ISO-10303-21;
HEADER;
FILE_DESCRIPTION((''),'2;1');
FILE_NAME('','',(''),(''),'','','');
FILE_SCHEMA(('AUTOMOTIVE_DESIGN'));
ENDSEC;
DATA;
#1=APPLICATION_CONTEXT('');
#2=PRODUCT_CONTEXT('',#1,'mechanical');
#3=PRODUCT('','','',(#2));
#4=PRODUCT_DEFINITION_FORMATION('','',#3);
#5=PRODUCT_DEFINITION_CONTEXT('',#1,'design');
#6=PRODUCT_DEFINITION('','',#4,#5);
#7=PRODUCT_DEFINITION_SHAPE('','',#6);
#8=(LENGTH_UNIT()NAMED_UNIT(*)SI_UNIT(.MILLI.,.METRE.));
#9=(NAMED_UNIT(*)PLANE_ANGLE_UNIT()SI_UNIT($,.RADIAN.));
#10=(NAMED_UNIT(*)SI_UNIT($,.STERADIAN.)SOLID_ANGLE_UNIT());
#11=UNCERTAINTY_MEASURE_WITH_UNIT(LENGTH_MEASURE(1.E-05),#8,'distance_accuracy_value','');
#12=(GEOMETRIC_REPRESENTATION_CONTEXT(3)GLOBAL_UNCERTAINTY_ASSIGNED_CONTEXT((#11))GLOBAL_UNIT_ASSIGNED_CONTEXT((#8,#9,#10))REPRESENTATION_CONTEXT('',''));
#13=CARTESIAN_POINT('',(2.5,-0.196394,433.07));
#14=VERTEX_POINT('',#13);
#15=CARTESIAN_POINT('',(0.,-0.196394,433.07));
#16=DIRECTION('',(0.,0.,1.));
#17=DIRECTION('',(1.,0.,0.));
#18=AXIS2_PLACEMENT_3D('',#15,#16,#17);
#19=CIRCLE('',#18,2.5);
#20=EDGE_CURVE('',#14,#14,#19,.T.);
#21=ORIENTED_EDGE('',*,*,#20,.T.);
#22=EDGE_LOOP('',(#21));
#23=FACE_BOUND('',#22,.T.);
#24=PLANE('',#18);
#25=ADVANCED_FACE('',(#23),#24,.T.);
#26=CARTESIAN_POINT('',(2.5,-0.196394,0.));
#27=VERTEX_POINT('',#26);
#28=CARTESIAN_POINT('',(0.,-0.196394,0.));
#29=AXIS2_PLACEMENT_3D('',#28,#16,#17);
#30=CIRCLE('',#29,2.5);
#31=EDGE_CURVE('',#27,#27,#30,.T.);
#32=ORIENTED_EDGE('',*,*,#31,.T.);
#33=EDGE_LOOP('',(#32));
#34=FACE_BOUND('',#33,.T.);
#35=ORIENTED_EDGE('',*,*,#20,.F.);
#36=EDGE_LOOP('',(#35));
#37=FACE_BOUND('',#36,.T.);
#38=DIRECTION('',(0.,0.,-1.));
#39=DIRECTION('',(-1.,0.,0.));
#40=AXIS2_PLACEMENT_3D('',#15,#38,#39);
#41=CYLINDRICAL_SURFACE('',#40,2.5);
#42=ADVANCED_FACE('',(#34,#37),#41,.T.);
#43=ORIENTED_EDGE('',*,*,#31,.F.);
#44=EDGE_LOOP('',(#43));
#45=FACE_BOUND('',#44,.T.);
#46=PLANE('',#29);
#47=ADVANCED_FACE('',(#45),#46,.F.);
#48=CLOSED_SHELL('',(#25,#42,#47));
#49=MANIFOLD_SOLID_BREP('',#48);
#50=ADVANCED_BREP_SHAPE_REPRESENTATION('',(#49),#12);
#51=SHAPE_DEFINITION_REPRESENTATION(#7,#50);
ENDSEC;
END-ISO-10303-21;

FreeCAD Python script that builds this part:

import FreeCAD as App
import Part
import Sketcher
from FreeCAD import Vector
Q = App.Units.Quantity

doc = App.newDocument("Part")
params = doc.addObject("Spreadsheet::Sheet", "Params")
for row, (alias, value) in enumerate([
    ("sketch1_diameter", "5 mm"),
    ("pad1_length", "433.07 mm"),
], start=1):
    params.set(f"A{row}", alias)
    params.set(f"B{row}", "=" + value)
    params.setAlias(f"B{row}", alias)

body = doc.addObject("PartDesign::Body", "Body")

# Sketch on XY plane
sketch1 = body.newObject("Sketcher::SketchObject", "Sketch")
sketch1.AttachmentSupport = (doc.getObject("XY_Plane"), [""])
sketch1.MapMode = "FlatFace"
sketch1.addGeometry(Part.Circle(Vector(0, -0.2, 0), Vector(0, 0, 1), 2.5), False)
sketch1.addConstraint([
    Sketcher.Constraint("PointOnObject", 0, 3, -2),
    Sketcher.Constraint("Diameter", 0, Q("5 mm")),
    Sketcher.Constraint("DistanceY", 0, 3, -1, 1, Q("0.196394 mm")),
])
sketch1.setExpression("Constraints[1]", "Params.sketch1_diameter")
pad1 = body.newObject("PartDesign::Pad", "Pad")
pad1.Profile = sketch1
pad1.setExpression("Length", "Params.pad1_length")

doc.recompute()
